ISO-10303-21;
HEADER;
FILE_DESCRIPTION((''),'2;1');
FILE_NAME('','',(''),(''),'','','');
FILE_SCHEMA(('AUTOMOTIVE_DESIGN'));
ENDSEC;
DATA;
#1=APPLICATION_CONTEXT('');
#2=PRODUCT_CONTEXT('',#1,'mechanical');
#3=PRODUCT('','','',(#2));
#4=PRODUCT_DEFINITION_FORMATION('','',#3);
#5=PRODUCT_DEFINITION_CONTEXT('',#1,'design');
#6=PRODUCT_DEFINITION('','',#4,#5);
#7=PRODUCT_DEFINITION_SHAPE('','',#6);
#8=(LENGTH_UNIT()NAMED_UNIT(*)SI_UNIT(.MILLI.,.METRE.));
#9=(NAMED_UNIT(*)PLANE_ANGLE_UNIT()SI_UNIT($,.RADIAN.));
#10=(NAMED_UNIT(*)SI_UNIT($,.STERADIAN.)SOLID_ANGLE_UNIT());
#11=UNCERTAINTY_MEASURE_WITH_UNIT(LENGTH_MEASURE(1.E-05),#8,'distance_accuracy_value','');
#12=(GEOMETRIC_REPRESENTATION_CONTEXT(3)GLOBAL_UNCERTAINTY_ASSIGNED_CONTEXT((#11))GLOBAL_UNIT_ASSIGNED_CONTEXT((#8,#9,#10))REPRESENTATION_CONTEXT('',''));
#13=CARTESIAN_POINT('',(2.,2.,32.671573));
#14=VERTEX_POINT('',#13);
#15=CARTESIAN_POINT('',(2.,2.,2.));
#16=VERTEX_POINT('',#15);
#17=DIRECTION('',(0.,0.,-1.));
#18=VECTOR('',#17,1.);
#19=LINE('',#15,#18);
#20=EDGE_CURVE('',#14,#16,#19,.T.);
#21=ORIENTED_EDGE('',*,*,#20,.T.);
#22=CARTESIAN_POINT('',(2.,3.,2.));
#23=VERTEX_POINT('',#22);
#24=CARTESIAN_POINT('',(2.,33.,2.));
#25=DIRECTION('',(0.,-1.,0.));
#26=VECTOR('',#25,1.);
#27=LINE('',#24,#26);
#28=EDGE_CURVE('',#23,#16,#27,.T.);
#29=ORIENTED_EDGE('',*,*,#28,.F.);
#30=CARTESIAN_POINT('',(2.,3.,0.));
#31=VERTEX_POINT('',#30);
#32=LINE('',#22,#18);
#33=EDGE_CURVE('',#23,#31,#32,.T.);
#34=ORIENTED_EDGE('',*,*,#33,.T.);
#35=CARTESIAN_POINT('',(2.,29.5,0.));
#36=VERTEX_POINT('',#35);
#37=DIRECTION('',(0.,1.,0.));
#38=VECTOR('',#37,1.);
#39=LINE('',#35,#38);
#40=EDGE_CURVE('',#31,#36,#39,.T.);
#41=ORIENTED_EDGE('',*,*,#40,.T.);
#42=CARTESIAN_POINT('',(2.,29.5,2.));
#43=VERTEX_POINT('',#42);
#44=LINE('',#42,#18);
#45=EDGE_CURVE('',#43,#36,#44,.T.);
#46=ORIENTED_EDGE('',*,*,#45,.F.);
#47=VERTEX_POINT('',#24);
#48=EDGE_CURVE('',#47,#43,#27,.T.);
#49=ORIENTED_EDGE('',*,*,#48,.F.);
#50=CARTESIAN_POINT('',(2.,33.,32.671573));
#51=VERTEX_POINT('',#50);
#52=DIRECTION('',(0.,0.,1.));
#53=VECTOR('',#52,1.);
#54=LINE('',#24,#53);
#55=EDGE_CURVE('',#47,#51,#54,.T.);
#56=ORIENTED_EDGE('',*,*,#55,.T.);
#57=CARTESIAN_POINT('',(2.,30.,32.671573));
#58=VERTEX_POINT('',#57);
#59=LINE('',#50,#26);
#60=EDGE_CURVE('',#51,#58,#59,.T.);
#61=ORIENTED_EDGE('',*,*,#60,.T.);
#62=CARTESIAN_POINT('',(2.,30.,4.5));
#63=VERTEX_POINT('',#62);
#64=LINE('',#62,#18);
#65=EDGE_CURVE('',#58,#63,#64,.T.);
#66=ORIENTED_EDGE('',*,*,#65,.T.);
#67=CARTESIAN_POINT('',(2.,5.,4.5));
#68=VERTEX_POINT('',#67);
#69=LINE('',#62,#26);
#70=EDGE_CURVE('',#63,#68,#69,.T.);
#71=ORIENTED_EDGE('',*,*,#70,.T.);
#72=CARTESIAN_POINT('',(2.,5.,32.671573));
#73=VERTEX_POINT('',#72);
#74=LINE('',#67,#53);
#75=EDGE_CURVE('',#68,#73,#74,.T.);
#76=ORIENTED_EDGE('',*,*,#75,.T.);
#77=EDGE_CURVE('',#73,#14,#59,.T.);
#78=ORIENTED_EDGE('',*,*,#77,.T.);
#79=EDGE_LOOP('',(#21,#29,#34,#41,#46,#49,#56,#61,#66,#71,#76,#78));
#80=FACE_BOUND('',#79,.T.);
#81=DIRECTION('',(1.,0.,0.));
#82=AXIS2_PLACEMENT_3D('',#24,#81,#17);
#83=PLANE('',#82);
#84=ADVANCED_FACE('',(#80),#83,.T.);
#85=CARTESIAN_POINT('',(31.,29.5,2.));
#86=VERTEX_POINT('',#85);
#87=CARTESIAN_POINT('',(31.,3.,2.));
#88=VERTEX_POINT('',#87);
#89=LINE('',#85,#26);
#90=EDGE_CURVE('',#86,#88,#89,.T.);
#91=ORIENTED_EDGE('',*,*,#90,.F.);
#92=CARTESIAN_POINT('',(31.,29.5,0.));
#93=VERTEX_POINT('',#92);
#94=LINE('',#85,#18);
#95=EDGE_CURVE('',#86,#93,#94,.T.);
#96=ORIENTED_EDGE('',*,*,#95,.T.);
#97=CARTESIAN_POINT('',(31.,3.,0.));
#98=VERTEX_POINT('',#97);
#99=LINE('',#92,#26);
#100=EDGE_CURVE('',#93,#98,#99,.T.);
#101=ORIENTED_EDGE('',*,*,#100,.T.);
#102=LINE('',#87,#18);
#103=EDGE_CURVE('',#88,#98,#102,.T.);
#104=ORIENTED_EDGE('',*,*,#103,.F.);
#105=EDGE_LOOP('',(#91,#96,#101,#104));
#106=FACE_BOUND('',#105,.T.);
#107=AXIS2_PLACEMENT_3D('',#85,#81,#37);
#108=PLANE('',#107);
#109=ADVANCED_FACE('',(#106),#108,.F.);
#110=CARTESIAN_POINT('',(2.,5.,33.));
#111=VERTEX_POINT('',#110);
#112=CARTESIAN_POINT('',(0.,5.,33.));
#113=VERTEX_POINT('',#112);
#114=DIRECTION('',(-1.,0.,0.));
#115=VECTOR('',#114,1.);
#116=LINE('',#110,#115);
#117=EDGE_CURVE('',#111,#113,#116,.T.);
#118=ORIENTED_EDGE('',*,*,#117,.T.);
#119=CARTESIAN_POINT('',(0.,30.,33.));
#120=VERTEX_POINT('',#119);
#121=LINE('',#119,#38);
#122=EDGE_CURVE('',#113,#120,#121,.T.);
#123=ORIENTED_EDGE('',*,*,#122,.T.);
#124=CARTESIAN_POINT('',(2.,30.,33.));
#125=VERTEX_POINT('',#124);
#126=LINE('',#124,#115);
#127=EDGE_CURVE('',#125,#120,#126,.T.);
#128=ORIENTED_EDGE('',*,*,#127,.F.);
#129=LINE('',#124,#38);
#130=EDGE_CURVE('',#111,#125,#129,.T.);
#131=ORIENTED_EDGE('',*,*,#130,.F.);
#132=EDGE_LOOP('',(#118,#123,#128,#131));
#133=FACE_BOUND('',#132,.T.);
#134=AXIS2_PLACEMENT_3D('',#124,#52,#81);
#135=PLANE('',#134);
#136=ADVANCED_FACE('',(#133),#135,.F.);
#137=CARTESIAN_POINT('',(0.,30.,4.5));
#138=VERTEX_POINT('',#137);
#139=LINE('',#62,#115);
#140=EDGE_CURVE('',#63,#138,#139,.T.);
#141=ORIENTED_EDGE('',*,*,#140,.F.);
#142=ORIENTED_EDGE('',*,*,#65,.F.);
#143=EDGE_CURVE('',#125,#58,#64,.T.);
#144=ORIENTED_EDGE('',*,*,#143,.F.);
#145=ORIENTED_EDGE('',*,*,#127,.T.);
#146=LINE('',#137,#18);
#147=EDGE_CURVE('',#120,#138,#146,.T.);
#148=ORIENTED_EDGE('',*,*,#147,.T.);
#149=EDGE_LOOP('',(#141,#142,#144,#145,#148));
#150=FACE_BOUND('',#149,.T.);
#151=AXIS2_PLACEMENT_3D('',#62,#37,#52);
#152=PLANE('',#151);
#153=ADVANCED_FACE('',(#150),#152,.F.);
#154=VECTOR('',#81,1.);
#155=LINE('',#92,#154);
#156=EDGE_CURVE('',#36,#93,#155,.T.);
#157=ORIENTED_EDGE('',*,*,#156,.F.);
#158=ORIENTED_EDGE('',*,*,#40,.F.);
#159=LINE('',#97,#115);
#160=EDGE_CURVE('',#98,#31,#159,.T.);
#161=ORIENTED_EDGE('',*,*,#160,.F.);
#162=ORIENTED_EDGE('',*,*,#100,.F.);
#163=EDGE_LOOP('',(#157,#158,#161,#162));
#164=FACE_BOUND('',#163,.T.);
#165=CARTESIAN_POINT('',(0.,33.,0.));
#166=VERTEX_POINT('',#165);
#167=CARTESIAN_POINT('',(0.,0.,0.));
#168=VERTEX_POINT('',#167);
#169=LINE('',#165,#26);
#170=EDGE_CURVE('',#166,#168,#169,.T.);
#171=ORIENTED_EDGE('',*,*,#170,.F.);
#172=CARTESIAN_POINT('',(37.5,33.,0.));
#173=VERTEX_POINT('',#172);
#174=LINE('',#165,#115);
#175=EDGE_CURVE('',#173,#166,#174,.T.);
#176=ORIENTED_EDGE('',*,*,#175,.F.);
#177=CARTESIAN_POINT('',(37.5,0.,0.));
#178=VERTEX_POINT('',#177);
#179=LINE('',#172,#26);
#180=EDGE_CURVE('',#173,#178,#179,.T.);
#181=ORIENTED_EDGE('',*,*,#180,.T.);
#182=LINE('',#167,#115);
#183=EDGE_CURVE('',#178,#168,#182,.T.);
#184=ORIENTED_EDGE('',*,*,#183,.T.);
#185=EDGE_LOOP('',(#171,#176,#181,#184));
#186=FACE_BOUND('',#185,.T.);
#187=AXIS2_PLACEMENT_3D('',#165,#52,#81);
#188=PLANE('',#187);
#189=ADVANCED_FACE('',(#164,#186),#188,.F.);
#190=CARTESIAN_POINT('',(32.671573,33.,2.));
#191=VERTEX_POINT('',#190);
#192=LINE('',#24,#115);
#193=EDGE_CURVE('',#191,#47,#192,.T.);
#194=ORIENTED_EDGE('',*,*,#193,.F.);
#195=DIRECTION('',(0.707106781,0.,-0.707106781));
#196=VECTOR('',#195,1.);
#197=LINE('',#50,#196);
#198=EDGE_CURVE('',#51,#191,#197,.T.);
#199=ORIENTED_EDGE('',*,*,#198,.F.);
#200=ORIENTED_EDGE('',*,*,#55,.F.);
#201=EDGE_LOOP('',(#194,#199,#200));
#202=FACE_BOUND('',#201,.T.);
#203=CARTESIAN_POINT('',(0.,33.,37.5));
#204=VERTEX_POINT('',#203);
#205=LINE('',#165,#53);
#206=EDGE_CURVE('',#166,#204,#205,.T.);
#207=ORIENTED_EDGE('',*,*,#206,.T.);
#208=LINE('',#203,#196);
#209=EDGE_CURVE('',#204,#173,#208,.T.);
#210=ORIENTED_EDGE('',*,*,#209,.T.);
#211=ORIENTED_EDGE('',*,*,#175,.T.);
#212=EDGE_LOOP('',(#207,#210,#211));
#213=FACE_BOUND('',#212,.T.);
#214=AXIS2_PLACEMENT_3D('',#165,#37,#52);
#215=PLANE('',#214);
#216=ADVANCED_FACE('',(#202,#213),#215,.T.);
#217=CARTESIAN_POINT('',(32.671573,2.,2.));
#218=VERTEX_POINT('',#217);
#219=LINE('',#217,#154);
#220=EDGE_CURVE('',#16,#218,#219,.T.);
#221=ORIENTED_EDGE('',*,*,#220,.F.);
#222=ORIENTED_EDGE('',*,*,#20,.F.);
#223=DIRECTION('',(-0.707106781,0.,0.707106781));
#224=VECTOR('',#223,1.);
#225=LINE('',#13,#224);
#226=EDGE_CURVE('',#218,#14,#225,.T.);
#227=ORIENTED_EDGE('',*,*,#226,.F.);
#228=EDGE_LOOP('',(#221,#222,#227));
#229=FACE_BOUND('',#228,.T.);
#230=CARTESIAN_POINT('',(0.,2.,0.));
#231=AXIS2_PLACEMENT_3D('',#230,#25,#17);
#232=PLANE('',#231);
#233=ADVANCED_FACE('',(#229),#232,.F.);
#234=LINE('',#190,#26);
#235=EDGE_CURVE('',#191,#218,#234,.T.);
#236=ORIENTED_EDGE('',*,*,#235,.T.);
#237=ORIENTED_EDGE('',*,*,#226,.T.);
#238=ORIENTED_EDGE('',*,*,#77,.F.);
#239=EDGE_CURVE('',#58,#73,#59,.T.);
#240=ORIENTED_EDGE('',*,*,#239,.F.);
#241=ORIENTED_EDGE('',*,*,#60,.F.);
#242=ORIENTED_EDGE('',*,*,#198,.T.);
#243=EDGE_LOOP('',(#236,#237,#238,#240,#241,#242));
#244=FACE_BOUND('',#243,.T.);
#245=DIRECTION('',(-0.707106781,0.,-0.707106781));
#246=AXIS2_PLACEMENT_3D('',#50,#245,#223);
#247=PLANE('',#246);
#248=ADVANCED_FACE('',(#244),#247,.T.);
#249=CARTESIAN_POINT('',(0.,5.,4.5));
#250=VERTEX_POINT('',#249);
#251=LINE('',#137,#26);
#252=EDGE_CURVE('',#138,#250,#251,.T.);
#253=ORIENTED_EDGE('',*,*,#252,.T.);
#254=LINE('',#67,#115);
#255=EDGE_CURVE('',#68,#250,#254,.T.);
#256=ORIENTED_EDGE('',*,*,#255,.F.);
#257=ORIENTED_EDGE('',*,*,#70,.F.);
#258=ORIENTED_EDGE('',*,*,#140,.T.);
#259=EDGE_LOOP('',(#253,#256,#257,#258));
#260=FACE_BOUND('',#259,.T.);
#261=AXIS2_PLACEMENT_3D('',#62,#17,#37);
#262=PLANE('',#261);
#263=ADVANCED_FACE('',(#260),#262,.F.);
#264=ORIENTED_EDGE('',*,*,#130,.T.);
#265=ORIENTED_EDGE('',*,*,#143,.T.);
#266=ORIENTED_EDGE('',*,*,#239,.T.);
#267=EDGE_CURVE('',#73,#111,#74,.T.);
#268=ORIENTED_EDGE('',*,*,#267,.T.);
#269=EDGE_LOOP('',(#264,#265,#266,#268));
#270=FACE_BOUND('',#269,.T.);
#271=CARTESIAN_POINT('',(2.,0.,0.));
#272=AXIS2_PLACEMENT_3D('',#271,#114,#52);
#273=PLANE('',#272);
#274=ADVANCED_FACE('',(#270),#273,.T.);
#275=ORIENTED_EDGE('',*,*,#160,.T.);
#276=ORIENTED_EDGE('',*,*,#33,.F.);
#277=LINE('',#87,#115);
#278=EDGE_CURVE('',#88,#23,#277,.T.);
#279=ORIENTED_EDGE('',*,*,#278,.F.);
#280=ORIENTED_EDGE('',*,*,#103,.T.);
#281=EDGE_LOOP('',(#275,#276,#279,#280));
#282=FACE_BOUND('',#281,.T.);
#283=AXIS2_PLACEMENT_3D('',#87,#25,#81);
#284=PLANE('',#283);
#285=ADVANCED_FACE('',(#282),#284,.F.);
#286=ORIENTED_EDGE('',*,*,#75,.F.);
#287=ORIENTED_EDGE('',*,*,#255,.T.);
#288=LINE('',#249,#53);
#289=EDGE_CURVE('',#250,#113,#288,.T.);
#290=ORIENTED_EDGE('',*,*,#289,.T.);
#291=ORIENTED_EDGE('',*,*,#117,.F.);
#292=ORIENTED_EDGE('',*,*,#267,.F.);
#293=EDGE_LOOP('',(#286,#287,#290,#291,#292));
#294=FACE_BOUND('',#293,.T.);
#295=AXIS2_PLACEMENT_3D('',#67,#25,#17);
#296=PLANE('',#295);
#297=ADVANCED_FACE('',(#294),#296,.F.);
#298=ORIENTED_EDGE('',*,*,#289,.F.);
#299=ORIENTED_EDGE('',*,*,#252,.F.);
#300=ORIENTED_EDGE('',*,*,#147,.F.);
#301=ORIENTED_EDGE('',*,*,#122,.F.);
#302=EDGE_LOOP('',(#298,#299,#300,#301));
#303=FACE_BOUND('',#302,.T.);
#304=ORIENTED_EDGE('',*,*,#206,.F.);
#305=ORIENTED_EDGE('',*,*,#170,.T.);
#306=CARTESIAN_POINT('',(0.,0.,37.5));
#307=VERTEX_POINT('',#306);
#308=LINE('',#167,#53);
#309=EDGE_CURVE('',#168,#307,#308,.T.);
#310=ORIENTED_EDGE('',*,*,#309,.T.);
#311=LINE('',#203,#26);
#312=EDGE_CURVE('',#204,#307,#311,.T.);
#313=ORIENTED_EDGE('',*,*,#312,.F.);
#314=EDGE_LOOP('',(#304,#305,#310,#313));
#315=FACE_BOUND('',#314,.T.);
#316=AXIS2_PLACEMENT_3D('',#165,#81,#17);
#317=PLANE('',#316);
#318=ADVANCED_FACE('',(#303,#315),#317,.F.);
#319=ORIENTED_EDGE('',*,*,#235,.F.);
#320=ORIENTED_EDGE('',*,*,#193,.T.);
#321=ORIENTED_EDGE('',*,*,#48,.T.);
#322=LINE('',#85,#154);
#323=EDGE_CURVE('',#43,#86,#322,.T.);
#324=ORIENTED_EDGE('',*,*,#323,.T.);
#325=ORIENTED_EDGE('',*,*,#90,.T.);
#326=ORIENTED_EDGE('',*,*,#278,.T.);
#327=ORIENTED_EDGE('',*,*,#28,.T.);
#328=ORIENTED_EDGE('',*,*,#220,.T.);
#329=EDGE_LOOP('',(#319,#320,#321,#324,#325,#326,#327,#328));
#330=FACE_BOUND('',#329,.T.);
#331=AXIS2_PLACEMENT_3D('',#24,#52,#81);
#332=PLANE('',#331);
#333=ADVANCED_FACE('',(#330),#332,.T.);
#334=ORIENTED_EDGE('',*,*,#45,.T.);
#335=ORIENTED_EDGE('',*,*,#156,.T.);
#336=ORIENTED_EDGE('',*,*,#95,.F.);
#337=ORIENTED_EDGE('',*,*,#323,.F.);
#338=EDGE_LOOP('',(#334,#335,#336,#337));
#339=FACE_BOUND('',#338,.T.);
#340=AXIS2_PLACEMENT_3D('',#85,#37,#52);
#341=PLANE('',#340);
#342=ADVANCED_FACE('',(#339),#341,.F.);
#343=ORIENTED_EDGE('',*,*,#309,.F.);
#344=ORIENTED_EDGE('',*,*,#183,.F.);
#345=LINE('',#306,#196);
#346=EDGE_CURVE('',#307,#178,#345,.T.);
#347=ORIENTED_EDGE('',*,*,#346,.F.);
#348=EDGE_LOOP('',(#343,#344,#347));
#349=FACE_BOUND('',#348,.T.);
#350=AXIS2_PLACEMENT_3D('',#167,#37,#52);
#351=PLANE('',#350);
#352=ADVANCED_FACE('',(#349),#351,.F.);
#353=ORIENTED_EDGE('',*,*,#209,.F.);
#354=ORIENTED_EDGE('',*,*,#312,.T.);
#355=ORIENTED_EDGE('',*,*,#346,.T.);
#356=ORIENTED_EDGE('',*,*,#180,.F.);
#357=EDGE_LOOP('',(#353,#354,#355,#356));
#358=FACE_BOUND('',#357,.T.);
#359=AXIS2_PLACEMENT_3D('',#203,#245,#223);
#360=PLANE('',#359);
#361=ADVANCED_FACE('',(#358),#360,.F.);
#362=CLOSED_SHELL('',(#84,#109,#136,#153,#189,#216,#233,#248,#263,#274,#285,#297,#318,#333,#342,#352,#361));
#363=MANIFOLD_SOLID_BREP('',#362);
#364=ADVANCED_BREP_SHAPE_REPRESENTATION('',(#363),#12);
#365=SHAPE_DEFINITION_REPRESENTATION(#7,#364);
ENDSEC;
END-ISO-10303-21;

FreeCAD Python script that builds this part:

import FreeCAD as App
import Part
import Sketcher
from FreeCAD import Vector


def add_polygon(sketch, points):
    """Adds a closed chain of lines whose ends are joined by coincident constraints."""
    first, n = sketch.GeometryCount, len(points)
    for a, b in zip(points, points[1:] + points[:1]):
        sketch.addGeometry(Part.LineSegment(App.Vector(*a, 0), App.Vector(*b, 0)), False)
    for i in range(n):
        sketch.addConstraint(Sketcher.Constraint("Coincident", first + i, 2, first + (i + 1) % n, 1))

doc = App.newDocument("Part")
body = doc.addObject("PartDesign::Body", "Body")

sketch1 = body.newObject("Sketcher::SketchObject", "Sketch")
sketch1.AttachmentSupport = (doc.getObject("XZ_Plane"), [""])
sketch1.MapMode = "FlatFace"
add_polygon(sketch1, [(38, 0), (0, 0), (0, 38)])
add_polygon(sketch1, [(2, 2), (33, 2), (2, 33)])
sketch1.addConstraint([
    Sketcher.Constraint("Horizontal", 0),
    Sketcher.Constraint("Vertical", 1),
    Sketcher.Constraint("Horizontal", 3),
    Sketcher.Constraint("Vertical", 5),
    Sketcher.Constraint("Coincident", 0, 2, -1, 1),
    Sketcher.Constraint("Parallel", 2, 4),
    Sketcher.Constraint("Equal", 0, 1),
    Sketcher.Constraint("DistanceX", 0, 2, 0, 1, 37.5),
    Sketcher.Constraint("DistanceY", -1, 1, 3, 2, 2.0),
    Sketcher.Constraint("DistanceX", -1, 1, 4, 2, 2.0),
    Sketcher.Constraint("DistanceX", 3, 1, 3, 2, 30.671573),
])
pad1 = body.newObject("PartDesign::Pad", "Pad")
pad1.Profile = sketch1
pad1.Length = 33
pad1.Reversed = True

sketch2 = body.newObject("Sketcher::SketchObject", "Sketch001")
sketch2.AttachmentSupport = (doc.getObject("XZ_Plane"), [""])
sketch2.MapMode = "FlatFace"
add_polygon(sketch2, [(33, 2), (2, 33), (2, 2)])
sketch2.addConstraint([
    Sketcher.Constraint("Vertical", 1),
    Sketcher.Constraint("Horizontal", 2),
    Sketcher.Constraint("Equal", 2, 1),
    Sketcher.Constraint("DistanceX", -1, 1, 0, 2, 2.0),
    Sketcher.Constraint("DistanceY", -1, 1, 1, 2, 2.0),
    Sketcher.Constraint("DistanceX", 2, 1, 2, 2, 30.671573),
])
pad2 = body.newObject("PartDesign::Pad", "Pad001")
pad2.Profile = sketch2
pad2.Length = 2
pad2.Reversed = True

sketch3 = body.newObject("Sketcher::SketchObject", "Sketch002")
sketch3.AttachmentSupport = (doc.getObject("XY_Plane"), [""])
sketch3.MapMode = "FlatFace"
add_polygon(sketch3, [(31, 30), (31, 3), (2, 3), (2, 30)])
sketch3.addConstraint([
    Sketcher.Constraint("Vertical", 0),
    Sketcher.Constraint("Horizontal", 1),
    Sketcher.Constraint("Vertical", 2),
    Sketcher.Constraint("Horizontal", 3),
    Sketcher.Constraint("DistanceX", 1, 2, 1, 1, 29.0),
    Sketcher.Constraint("DistanceY", 0, 2, 0, 1, 26.5),
    Sketcher.Constraint("DistanceX", -1, 1, 0, 2, 31.0),
    Sketcher.Constraint("DistanceY", -1, 1, 0, 2, 3.0),
])
pocket1 = body.newObject("PartDesign::Pocket", "Pocket")
pocket1.Profile = sketch3
pocket1.Length = 2
pocket1.Reversed = True

sketch4 = body.newObject("Sketcher::SketchObject", "Sketch003")
sketch4.AttachmentSupport = (doc.getObject("YZ_Plane"), [""])
sketch4.MapMode = "FlatFace"
add_polygon(sketch4, [(30, 4), (5, 4), (5, 33), (30, 33)])
sketch4.addConstraint([
    Sketcher.Constraint("Horizontal", 0),
    Sketcher.Constraint("Vertical", 1),
    Sketcher.Constraint("Horizontal", 2),
    Sketcher.Constraint("Vertical", 3),
    Sketcher.Constraint("DistanceX", 0, 2, 0, 1, 25.0),
    Sketcher.Constraint("DistanceY", 1, 1, 1, 2, 28.5),
    Sketcher.Constraint("DistanceX", -1, 1, 0, 2, 5.0),
    Sketcher.Constraint("DistanceY", -1, 1, 1, 2, 33.0),
])
pocket2 = body.newObject("PartDesign::Pocket", "Pocket001")
pocket2.Profile = sketch4
pocket2.Length = 2
pocket2.Reversed = True

doc.recompute()
